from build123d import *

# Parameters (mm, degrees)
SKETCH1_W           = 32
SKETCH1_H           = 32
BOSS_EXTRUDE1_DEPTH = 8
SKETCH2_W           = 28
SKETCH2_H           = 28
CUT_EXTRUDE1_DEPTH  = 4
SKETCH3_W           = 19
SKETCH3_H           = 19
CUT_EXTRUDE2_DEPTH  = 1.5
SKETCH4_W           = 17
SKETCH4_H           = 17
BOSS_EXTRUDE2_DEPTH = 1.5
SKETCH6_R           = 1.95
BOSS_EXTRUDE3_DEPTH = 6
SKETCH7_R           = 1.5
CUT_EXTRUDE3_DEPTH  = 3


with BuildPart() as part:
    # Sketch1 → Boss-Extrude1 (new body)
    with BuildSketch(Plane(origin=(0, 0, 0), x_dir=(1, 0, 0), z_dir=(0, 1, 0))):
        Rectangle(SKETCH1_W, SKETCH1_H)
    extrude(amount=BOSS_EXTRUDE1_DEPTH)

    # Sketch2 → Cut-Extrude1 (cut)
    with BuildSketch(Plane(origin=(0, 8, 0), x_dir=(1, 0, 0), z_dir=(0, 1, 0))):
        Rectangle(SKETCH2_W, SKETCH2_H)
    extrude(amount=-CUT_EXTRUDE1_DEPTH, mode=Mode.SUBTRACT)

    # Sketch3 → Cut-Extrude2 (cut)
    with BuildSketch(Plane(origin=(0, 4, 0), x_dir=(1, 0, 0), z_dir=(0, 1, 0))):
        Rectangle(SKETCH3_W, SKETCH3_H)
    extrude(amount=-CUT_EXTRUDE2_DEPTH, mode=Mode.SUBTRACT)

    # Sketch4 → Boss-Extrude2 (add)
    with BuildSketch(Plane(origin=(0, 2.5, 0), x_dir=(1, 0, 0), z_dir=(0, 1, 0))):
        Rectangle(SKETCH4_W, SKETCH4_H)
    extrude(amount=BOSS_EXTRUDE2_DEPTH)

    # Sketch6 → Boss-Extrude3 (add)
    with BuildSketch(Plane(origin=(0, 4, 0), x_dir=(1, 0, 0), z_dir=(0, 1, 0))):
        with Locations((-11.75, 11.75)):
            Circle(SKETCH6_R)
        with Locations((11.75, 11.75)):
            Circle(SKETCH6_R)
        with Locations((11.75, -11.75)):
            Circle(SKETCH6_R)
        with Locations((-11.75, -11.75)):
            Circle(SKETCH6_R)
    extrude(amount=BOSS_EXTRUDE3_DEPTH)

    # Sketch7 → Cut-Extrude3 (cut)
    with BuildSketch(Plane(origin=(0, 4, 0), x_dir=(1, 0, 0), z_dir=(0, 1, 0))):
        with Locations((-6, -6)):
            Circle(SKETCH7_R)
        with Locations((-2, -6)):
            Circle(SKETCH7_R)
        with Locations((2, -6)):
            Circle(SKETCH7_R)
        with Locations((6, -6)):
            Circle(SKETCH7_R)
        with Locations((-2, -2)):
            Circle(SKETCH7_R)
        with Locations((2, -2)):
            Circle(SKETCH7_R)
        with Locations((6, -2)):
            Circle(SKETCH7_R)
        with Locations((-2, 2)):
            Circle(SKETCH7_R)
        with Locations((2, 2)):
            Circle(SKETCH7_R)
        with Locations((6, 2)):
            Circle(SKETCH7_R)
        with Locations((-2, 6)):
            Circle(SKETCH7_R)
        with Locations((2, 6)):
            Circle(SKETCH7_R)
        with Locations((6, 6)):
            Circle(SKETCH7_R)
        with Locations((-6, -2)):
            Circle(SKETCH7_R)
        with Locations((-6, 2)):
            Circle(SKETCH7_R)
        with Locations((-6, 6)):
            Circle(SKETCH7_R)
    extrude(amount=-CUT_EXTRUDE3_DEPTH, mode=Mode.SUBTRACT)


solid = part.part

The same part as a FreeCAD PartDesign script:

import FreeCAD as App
import Part
import Sketcher


def add_polygon(sketch, points):
    """Adds a closed chain of lines whose ends are joined by coincident constraints."""
    first, n = sketch.GeometryCount, len(points)
    for a, b in zip(points, points[1:] + points[:1]):
        sketch.addGeometry(Part.LineSegment(App.Vector(*a, 0), App.Vector(*b, 0)), False)
    for i in range(n):
        sketch.addConstraint(Sketcher.Constraint("Coincident", first + i, 2, first + (i + 1) % n, 1))

doc = App.newDocument("Part")
body = doc.addObject("PartDesign::Body", "Body")

# Sketch on XZ plane
sketch1 = body.newObject("Sketcher::SketchObject", "Sketch")
sketch1.AttachmentSupport = (doc.getObject("XZ_Plane"), [""])
sketch1.MapMode = "FlatFace"
add_polygon(sketch1, [(-16, -16), (-16, 16), (16, 16), (16, -16)])  # lines 0-3
sketch1.addConstraint(Sketcher.Constraint("Vertical", 0))
sketch1.addConstraint(Sketcher.Constraint("Horizontal", 1))
sketch1.addConstraint(Sketcher.Constraint("Vertical", 2))
sketch1.addConstraint(Sketcher.Constraint("Horizontal", 3))
sketch1.addConstraint(Sketcher.Constraint("Symmetric", 0, 2, 2, 2, -1, 1))
sketch1.addConstraint(Sketcher.Constraint("Equal", 3, 0))
sketch1.addConstraint(Sketcher.Constraint("DistanceX", 1, 1, 1, 2, 32.0))
pad1 = body.newObject("PartDesign::Pad", "Pad")
pad1.Profile = sketch1
pad1.Length = 8
pad1.Reversed = True

# Sketch on XZ plane
sketch2 = body.newObject("Sketcher::SketchObject", "Sketch001")
sketch2.AttachmentSupport = (doc.getObject("XZ_Plane"), [""])
sketch2.MapMode = "FlatFace"
sketch2.AttachmentOffset = App.Placement(App.Vector(0, 0, -8), App.Rotation())
add_polygon(sketch2, [(-14, -14), (-14, 14), (14, 14), (14, -14)])  # lines 0-3
sketch2.addConstraint(Sketcher.Constraint("Vertical", 0))
sketch2.addConstraint(Sketcher.Constraint("Horizontal", 1))
sketch2.addConstraint(Sketcher.Constraint("Vertical", 2))
sketch2.addConstraint(Sketcher.Constraint("Horizontal", 3))
sketch2.addConstraint(Sketcher.Constraint("Symmetric", 0, 2, 2, 2, -1, 1))
sketch2.addConstraint(Sketcher.Constraint("Equal", 3, 0))
sketch2.addConstraint(Sketcher.Constraint("DistanceX", 1, 1, 1, 2, 28.0))
pocket1 = body.newObject("PartDesign::Pocket", "Pocket")
pocket1.Profile = sketch2
pocket1.Length = 4
pocket1.Reversed = True

# Sketch on XZ plane
sketch3 = body.newObject("Sketcher::SketchObject", "Sketch002")
sketch3.AttachmentSupport = (doc.getObject("XZ_Plane"), [""])
sketch3.MapMode = "FlatFace"
sketch3.AttachmentOffset = App.Placement(App.Vector(0, 0, -4), App.Rotation())
add_polygon(sketch3, [(-10, -10), (-10, 10), (10, 10), (10, -10)])  # lines 0-3
sketch3.addConstraint(Sketcher.Constraint("Vertical", 0))
sketch3.addConstraint(Sketcher.Constraint("Horizontal", 1))
sketch3.addConstraint(Sketcher.Constraint("Vertical", 2))
sketch3.addConstraint(Sketcher.Constraint("Horizontal", 3))
sketch3.addConstraint(Sketcher.Constraint("Symmetric", 0, 2, 2, 2, -1, 1))
sketch3.addConstraint(Sketcher.Constraint("Equal", 3, 0))
sketch3.addConstraint(Sketcher.Constraint("DistanceX", 1, 1, 1, 2, 19.0))
pocket2 = body.newObject("PartDesign::Pocket", "Pocket001")
pocket2.Profile = sketch3
pocket2.Length = 1.5
pocket2.Reversed = True

# Sketch on XZ plane
sketch4 = body.newObject("Sketcher::SketchObject", "Sketch003")
sketch4.AttachmentSupport = (doc.getObject("XZ_Plane"), [""])
sketch4.MapMode = "FlatFace"
sketch4.AttachmentOffset = App.Placement(App.Vector(0, 0, -2.5), App.Rotation())
add_polygon(sketch4, [(-8, -8), (-8, 8), (8, 8), (8, -8)])  # lines 0-3
sketch4.addConstraint(Sketcher.Constraint("Vertical", 0))
sketch4.addConstraint(Sketcher.Constraint("Horizontal", 1))
sketch4.addConstraint(Sketcher.Constraint("Vertical", 2))
sketch4.addConstraint(Sketcher.Constraint("Horizontal", 3))
sketch4.addConstraint(Sketcher.Constraint("Symmetric", 0, 2, 2, 2, -1, 1))
sketch4.addConstraint(Sketcher.Constraint("Equal", 3, 0))
sketch4.addConstraint(Sketcher.Constraint("DistanceX", 1, 1, 1, 2, 17.0))
pad2 = body.newObject("PartDesign::Pad", "Pad001")
pad2.Profile = sketch4
pad2.Length = 1.5
pad2.Reversed = True

# Sketch on XZ plane
sketch5 = body.newObject("Sketcher::SketchObject", "Sketch004")
sketch5.AttachmentSupport = (doc.getObject("XZ_Plane"), [""])
sketch5.MapMode = "FlatFace"
sketch5.AttachmentOffset = App.Placement(App.Vector(0, 0, -4), App.Rotation())
sketch5.addGeometry(Part.Circle(App.Vector(-11.8, -11.8, 0), App.Vector(0, 0, 1), 1.9), False)
sketch5.addGeometry(Part.Circle(App.Vector(11.8, -11.8, 0), App.Vector(0, 0, 1), 1.9), False)
sketch5.addGeometry(Part.Circle(App.Vector(11.8, 11.8, 0), App.Vector(0, 0, 1), 1.9), False)
sketch5.addGeometry(Part.Circle(App.Vector(-11.8, 11.8, 0), App.Vector(0, 0, 1), 1.9), False)
sketch5.addConstraint(Sketcher.Constraint("Equal", 0, 1))
sketch5.addConstraint(Sketcher.Constraint("Equal", 1, 2))
sketch5.addConstraint(Sketcher.Constraint("Equal", 2, 3))
sketch5.addConstraint(Sketcher.Constraint("Symmetric", 0, 3, 2, 3, -1, 1))
sketch5.addConstraint(Sketcher.Constraint("Symmetric", 1, 3, 3, 3, -1, 1))
sketch5.addConstraint(Sketcher.Constraint("Symmetric", 0, 3, 1, 3, -2))
sketch5.addConstraint(Sketcher.Constraint("Diameter", 0, 3.9))
sketch5.addConstraint(Sketcher.Constraint("DistanceX", 0, 3, 1, 3, 23.5))
sketch5.addConstraint(Sketcher.Constraint("DistanceY", 1, 3, 2, 3, 23.5))
pad3 = body.newObject("PartDesign::Pad", "Pad002")
pad3.Profile = sketch5
pad3.Length = 6
pad3.Reversed = True

# Sketch on XZ plane
sketch6 = body.newObject("Sketcher::SketchObject", "Sketch005")
sketch6.AttachmentSupport = (doc.getObject("XZ_Plane"), [""])
sketch6.MapMode = "FlatFace"
sketch6.AttachmentOffset = App.Placement(App.Vector(0, 0, -4), App.Rotation())
sketch6.addGeometry(Part.Circle(App.Vector(-6, 6, 0), App.Vector(0, 0, 1), 1.5), False)
sketch6.addGeometry(Part.Circle(App.Vector(-2, 6, 0), App.Vector(0, 0, 1), 1.5), False)
sketch6.addGeometry(Part.Circle(App.Vector(2, 6, 0), App.Vector(0, 0, 1), 1.5), False)
sketch6.addGeometry(Part.Circle(App.Vector(6, 6, 0), App.Vector(0, 0, 1), 1.5), False)
sketch6.addGeometry(Part.Circle(App.Vector(-2, 2, 0), App.Vector(0, 0, 1), 1.5), False)
sketch6.addGeometry(Part.Circle(App.Vector(2, 2, 0), App.Vector(0, 0, 1), 1.5), False)
sketch6.addGeometry(Part.Circle(App.Vector(6, 2, 0), App.Vector(0, 0, 1), 1.5), False)
sketch6.addGeometry(Part.Circle(App.Vector(-2, -2, 0), App.Vector(0, 0, 1), 1.5), False)
sketch6.addGeometry(Part.Circle(App.Vector(2, -2, 0), App.Vector(0, 0, 1), 1.5), False)
sketch6.addGeometry(Part.Circle(App.Vector(6, -2, 0), App.Vector(0, 0, 1), 1.5), False)
sketch6.addGeometry(Part.Circle(App.Vector(-2, -6, 0), App.Vector(0, 0, 1), 1.5), False)
sketch6.addGeometry(Part.Circle(App.Vector(2, -6, 0), App.Vector(0, 0, 1), 1.5), False)
sketch6.addGeometry(Part.Circle(App.Vector(6, -6, 0), App.Vector(0, 0, 1), 1.5), False)
sketch6.addGeometry(Part.Circle(App.Vector(-6, 2, 0), App.Vector(0, 0, 1), 1.5), False)
sketch6.addGeometry(Part.Circle(App.Vector(-6, -2, 0), App.Vector(0, 0, 1), 1.5), False)
sketch6.addGeometry(Part.Circle(App.Vector(-6, -6, 0), App.Vector(0, 0, 1), 1.5), False)
sketch6.addConstraint(Sketcher.Constraint("Equal", 0, 1))
sketch6.addConstraint(Sketcher.Constraint("Equal", 1, 2))
sketch6.addConstraint(Sketcher.Constraint("Equal", 2, 3))
sketch6.addConstraint(Sketcher.Constraint("Equal", 3, 4))
sketch6.addConstraint(Sketcher.Constraint("Equal", 4, 5))
sketch6.addConstraint(Sketcher.Constraint("Equal", 5, 6))
sketch6.addConstraint(Sketcher.Constraint("Equal", 6, 7))
sketch6.addConstraint(Sketcher.Constraint("Equal", 7, 8))
sketch6.addConstraint(Sketcher.Constraint("Equal", 8, 9))
sketch6.addConstraint(Sketcher.Constraint("Equal", 9, 10))
sketch6.addConstraint(Sketcher.Constraint("Equal", 10, 11))
sketch6.addConstraint(Sketcher.Constraint("Equal", 11, 12))
sketch6.addConstraint(Sketcher.Constraint("Equal", 12, 13))
sketch6.addConstraint(Sketcher.Constraint("Equal", 13, 14))
sketch6.addConstraint(Sketcher.Constraint("Equal", 14, 15))
sketch6.addConstraint(Sketcher.Constraint("Symmetric", 5, 3, 7, 3, -1, 1))
sketch6.addConstraint(Sketcher.Constraint("Symmetric", 4, 3, 8, 3, -1, 1))
sketch6.addConstraint(Sketcher.Constraint("Symmetric", 2, 3, 10, 3, -1, 1))
sketch6.addConstraint(Sketcher.Constraint("Symmetric", 1, 3, 11, 3, -1, 1))
sketch6.addConstraint(Sketcher.Constraint("Symmetric", 0, 3, 12, 3, -1, 1))
sketch6.addConstraint(Sketcher.Constraint("Symmetric", 9, 3, 13, 3, -1, 1))
sketch6.addConstraint(Sketcher.Constraint("Symmetric", 6, 3, 14, 3, -1, 1))
sketch6.addConstraint(Sketcher.Constraint("Symmetric", 3, 3, 15, 3, -1, 1))
sketch6.addConstraint(Sketcher.Constraint("Symmetric", 1, 3, 2, 3, -2))
sketch6.addConstraint(Sketcher.Constraint("Symmetric", 0, 3, 3, 3, -2))
sketch6.addConstraint(Sketcher.Constraint("Symmetric", 4, 3, 5, 3, -2))
sketch6.addConstraint(Sketcher.Constraint("Symmetric", 6, 3, 13, 3, -2))
sketch6.addConstraint(Sketcher.Constraint("Horizontal", 0, 3, 1, 3))
sketch6.addConstraint(Sketcher.Constraint("Horizontal", 5, 3, 6, 3))
sketch6.addConstraint(Sketcher.Constraint("Vertical", 1, 3, 4, 3))
sketch6.addConstraint(Sketcher.Constraint("Vertical", 3, 3, 6, 3))
sketch6.addConstraint(Sketcher.Constraint("Diameter", 0, 3.0))
sketch6.addConstraint(Sketcher.Constraint("DistanceX", 0, 3, -1, 1, 6.0))
sketch6.addConstraint(Sketcher.Constraint("DistanceY", -1, 1, 0, 3, 6.0))
sketch6.addConstraint(Sketcher.Constraint("DistanceX", 1, 3, -1, 1, 2.0))
sketch6.addConstraint(Sketcher.Constraint("DistanceY", -1, 1, 4, 3, 2.0))
pocket3 = body.newObject("PartDesign::Pocket", "Pocket002")
pocket3.Profile = sketch6
pocket3.Length = 3
pocket3.Reversed = True

doc.recompute()
